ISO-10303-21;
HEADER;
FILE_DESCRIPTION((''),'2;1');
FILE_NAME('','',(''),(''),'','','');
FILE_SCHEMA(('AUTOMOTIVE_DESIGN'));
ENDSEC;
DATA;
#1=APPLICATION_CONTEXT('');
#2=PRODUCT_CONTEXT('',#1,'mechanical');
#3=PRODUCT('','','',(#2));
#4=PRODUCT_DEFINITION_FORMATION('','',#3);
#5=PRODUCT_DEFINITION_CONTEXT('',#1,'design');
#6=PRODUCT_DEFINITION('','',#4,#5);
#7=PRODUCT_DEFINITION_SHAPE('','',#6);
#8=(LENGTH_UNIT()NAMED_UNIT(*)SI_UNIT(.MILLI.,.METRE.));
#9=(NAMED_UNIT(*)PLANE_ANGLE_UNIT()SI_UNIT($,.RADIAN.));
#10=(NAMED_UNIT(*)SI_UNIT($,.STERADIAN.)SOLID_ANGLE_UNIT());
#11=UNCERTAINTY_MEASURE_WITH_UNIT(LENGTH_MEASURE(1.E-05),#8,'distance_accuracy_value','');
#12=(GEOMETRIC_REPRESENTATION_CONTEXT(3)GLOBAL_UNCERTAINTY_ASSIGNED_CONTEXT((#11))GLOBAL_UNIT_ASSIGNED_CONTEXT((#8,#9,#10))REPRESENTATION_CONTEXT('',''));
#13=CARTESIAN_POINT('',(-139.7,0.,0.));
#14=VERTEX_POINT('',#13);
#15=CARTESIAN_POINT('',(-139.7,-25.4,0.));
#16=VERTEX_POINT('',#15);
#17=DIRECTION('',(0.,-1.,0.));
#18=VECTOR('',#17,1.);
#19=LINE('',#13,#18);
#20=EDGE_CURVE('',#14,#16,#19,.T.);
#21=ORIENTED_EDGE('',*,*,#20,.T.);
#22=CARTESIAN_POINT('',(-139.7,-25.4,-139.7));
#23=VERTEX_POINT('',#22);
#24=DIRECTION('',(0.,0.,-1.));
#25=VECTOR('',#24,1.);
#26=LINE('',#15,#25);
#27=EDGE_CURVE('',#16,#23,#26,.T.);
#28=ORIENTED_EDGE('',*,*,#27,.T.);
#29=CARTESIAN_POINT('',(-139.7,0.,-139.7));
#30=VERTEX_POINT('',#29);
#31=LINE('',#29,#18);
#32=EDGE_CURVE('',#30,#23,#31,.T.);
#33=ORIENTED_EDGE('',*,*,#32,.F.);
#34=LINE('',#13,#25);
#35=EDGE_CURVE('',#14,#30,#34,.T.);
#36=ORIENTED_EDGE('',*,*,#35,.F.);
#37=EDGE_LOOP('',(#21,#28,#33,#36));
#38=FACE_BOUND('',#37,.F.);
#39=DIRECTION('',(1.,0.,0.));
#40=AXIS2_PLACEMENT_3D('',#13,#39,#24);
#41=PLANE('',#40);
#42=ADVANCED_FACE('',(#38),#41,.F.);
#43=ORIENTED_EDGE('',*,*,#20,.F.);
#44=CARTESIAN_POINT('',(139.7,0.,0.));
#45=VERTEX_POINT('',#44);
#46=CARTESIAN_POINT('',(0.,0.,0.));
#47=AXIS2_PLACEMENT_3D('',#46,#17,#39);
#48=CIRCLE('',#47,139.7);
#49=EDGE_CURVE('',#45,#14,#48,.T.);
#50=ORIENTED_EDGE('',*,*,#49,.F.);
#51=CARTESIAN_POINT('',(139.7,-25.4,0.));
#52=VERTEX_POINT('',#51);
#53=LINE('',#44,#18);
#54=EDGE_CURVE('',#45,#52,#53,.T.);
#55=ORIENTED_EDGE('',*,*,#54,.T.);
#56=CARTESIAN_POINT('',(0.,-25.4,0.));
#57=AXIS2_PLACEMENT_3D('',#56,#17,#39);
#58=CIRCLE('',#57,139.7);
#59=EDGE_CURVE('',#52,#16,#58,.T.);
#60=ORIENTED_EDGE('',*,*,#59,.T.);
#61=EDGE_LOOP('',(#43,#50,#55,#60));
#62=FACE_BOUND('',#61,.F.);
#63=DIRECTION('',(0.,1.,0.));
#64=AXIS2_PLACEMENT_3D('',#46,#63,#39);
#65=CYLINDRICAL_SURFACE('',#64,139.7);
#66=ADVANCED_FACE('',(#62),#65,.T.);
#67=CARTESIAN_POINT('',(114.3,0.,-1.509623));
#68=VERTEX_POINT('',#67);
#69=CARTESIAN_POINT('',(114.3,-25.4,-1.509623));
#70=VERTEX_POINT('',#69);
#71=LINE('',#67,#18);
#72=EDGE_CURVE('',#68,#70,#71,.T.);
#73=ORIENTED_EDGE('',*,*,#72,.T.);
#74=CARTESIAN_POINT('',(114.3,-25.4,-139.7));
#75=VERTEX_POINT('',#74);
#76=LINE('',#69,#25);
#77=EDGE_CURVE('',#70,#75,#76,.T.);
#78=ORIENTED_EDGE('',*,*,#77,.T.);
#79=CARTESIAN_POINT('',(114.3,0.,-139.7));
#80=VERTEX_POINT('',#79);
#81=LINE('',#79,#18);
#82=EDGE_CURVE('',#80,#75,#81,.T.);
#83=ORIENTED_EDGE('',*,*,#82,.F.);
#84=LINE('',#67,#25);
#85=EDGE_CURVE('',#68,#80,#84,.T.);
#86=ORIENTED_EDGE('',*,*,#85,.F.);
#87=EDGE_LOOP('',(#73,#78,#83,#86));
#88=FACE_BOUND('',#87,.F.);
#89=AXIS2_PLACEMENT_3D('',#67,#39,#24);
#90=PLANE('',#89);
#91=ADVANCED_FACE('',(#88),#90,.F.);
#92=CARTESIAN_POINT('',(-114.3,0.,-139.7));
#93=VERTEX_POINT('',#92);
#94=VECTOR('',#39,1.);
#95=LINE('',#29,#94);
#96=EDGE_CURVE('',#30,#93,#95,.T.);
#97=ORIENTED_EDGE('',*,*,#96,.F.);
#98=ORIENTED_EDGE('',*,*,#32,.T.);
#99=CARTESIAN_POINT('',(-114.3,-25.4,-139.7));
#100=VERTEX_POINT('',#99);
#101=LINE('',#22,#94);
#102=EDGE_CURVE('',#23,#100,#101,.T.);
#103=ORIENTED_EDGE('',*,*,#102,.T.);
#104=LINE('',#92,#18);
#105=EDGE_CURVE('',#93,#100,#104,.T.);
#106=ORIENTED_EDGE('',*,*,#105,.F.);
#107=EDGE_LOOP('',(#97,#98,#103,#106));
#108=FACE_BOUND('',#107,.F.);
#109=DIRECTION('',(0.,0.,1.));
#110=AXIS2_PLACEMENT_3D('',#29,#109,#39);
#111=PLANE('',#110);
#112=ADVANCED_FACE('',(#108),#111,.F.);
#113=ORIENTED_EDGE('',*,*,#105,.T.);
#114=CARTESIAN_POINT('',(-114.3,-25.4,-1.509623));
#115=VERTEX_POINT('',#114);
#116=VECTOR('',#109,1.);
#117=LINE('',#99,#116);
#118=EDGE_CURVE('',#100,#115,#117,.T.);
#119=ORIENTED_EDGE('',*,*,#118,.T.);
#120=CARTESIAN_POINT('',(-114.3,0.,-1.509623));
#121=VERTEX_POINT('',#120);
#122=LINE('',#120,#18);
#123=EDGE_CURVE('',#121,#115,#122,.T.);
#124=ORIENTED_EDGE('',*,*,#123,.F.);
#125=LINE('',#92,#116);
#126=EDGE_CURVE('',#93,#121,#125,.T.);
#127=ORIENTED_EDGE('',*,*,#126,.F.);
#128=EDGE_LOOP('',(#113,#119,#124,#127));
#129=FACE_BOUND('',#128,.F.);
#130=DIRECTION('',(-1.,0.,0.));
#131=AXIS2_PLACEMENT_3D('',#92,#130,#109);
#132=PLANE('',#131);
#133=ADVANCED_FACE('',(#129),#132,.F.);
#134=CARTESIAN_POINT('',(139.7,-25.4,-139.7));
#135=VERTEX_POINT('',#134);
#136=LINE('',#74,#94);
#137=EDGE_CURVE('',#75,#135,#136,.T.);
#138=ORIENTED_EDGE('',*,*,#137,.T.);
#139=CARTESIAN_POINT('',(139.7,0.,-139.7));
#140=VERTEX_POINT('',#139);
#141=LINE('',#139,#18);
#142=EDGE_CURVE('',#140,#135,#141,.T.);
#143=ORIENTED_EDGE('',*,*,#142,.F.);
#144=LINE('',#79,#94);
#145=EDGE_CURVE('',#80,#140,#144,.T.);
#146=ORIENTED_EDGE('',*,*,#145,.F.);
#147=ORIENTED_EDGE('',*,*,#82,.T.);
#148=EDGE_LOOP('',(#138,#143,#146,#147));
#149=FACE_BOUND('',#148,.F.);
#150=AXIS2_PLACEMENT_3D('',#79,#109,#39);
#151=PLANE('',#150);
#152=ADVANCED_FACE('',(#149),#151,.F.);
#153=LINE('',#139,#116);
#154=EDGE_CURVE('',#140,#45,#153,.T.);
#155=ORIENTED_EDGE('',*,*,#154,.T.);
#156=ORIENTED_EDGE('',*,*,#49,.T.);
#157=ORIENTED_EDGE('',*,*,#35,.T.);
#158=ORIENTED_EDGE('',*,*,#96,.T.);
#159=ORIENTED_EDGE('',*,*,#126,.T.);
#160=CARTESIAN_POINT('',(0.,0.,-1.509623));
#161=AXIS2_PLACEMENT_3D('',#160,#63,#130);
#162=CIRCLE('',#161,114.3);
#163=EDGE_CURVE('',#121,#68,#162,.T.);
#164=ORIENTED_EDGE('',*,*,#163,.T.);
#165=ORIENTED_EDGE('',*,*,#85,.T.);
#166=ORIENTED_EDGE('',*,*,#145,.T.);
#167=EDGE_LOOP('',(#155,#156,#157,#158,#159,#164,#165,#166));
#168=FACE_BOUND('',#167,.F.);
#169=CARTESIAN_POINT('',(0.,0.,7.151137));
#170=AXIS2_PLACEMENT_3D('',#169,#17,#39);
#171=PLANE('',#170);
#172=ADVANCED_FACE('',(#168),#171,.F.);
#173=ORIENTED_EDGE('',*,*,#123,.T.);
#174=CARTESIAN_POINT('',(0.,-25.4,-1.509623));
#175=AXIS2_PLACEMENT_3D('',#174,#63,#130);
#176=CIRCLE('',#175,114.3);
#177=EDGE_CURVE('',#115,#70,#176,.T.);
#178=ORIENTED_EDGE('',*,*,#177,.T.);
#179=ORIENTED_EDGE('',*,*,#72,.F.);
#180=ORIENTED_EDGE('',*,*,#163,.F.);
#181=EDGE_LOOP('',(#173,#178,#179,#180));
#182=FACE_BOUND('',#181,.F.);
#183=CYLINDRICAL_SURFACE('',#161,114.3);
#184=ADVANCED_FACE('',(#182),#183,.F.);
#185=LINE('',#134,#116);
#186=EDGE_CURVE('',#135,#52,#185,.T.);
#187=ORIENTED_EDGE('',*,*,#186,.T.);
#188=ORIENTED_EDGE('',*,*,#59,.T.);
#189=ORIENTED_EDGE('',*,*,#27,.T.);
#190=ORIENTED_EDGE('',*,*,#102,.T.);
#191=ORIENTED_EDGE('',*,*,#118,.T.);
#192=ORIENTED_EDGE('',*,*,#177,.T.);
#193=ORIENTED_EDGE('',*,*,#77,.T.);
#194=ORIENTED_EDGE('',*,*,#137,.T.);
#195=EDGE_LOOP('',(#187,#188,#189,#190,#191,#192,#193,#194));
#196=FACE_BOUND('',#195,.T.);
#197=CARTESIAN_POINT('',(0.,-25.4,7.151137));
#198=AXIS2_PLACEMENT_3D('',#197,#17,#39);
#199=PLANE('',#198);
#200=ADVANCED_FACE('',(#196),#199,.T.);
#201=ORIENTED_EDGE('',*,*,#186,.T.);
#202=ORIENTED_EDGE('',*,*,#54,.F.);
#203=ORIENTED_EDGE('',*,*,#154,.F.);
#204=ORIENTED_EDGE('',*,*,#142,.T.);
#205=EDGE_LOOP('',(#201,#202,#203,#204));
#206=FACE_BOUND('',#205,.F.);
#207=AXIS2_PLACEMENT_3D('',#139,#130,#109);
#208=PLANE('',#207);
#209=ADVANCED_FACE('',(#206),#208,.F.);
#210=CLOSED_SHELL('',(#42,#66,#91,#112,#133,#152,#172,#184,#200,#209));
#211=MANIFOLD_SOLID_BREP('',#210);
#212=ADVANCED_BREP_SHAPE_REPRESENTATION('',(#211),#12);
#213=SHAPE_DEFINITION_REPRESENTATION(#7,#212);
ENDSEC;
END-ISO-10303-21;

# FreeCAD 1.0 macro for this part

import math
import FreeCAD as App
import Part
import Sketcher

V = App.Vector
Q = App.Units.Quantity

doc = App.newDocument("Part")
params = doc.addObject("Spreadsheet::Sheet", "Params")
for row, (alias, value) in enumerate([
    ("sketch1_radius", "5.5 in"),
    ("sketch1_radius2", "4.5 in"),
    ("sketch1_height", "5.5 in"),
    ("pad1_length", "1 in"),
], start=1):
    params.set(f"A{row}", alias)
    params.set(f"B{row}", "=" + value)
    params.setAlias(f"B{row}", alias)

body = doc.addObject("PartDesign::Body", "Body")

sketch1 = body.newObject("Sketcher::SketchObject", "Sketch")
sketch1.AttachmentSupport = (doc.getObject("XZ_Plane"), [""])
sketch1.MapMode = "FlatFace"
sketch1.addGeometry(Part.LineSegment(V(140, -140, 0), V(140, 0, 0)), False)
sketch1.addGeometry(Part.ArcOfCircle(Part.Circle(V(0, 0, 0), V(0, 0, 1), 140), math.radians(0), math.radians(180)), False)
sketch1.addGeometry(Part.LineSegment(V(-140, 0, 0), V(-140, -140, 0)), False)
sketch1.addGeometry(Part.LineSegment(V(-140, -140, 0), V(-114, -140, 0)), False)
sketch1.addGeometry(Part.LineSegment(V(-114, -140, 0), V(-114, -2, 0)), False)
sketch1.addGeometry(Part.ArcOfCircle(Part.Circle(V(0, -2, 0), V(0, 0, 1), 114), math.radians(0), math.radians(180)), False)
sketch1.addGeometry(Part.LineSegment(V(114, -2, 0), V(114, -140, 0)), False)
sketch1.addGeometry(Part.LineSegment(V(114, -140, 0), V(140, -140, 0)), False)
sketch1.addConstraint(Sketcher.Constraint("Tangent", 0, 2, 1, 1))
sketch1.addConstraint(Sketcher.Constraint("Tangent", 1, 2, 2, 1))
sketch1.addConstraint(Sketcher.Constraint("Coincident", 2, 2, 3, 1))
sketch1.addConstraint(Sketcher.Constraint("Coincident", 3, 2, 4, 1))
sketch1.addConstraint(Sketcher.Constraint("Tangent", 4, 2, 5, 2))
sketch1.addConstraint(Sketcher.Constraint("Tangent", 5, 1, 6, 1))
sketch1.addConstraint(Sketcher.Constraint("Coincident", 6, 2, 7, 1))
sketch1.addConstraint(Sketcher.Constraint("Coincident", 7, 2, 0, 1))
sketch1.addConstraint(Sketcher.Constraint("Vertical", 0))
sketch1.addConstraint(Sketcher.Constraint("Vertical", 2))
sketch1.addConstraint(Sketcher.Constraint("Horizontal", 3))
sketch1.addConstraint(Sketcher.Constraint("Vertical", 4))
sketch1.addConstraint(Sketcher.Constraint("Vertical", 6))
sketch1.addConstraint(Sketcher.Constraint("Horizontal", 7))
sketch1.addConstraint(Sketcher.Constraint("Coincident", 1, 3, -1, 1))
sketch1.addConstraint(Sketcher.Constraint("Symmetric", 3, 2, 6, 2, -2))
sketch1.addConstraint(Sketcher.Constraint("Radius", 1, Q("5.5 in")))
sketch1.addConstraint(Sketcher.Constraint("Radius", 5, Q("4.5 in")))
sketch1.addConstraint(Sketcher.Constraint("DistanceY", 0, 1, 0, 2, Q("5.5 in")))
sketch1.addConstraint(Sketcher.Constraint("DistanceY", 4, 1, 4, 2, Q("138.190377 mm")))
sketch1.setExpression("Constraints[16]", "Params.sketch1_radius")
sketch1.setExpression("Constraints[17]", "Params.sketch1_radius2")
sketch1.setExpression("Constraints[18]", "Params.sketch1_height")
pad1 = body.newObject("PartDesign::Pad", "Pad")
pad1.Profile = sketch1
pad1.setExpression("Length", "Params.pad1_length")

doc.recompute()
